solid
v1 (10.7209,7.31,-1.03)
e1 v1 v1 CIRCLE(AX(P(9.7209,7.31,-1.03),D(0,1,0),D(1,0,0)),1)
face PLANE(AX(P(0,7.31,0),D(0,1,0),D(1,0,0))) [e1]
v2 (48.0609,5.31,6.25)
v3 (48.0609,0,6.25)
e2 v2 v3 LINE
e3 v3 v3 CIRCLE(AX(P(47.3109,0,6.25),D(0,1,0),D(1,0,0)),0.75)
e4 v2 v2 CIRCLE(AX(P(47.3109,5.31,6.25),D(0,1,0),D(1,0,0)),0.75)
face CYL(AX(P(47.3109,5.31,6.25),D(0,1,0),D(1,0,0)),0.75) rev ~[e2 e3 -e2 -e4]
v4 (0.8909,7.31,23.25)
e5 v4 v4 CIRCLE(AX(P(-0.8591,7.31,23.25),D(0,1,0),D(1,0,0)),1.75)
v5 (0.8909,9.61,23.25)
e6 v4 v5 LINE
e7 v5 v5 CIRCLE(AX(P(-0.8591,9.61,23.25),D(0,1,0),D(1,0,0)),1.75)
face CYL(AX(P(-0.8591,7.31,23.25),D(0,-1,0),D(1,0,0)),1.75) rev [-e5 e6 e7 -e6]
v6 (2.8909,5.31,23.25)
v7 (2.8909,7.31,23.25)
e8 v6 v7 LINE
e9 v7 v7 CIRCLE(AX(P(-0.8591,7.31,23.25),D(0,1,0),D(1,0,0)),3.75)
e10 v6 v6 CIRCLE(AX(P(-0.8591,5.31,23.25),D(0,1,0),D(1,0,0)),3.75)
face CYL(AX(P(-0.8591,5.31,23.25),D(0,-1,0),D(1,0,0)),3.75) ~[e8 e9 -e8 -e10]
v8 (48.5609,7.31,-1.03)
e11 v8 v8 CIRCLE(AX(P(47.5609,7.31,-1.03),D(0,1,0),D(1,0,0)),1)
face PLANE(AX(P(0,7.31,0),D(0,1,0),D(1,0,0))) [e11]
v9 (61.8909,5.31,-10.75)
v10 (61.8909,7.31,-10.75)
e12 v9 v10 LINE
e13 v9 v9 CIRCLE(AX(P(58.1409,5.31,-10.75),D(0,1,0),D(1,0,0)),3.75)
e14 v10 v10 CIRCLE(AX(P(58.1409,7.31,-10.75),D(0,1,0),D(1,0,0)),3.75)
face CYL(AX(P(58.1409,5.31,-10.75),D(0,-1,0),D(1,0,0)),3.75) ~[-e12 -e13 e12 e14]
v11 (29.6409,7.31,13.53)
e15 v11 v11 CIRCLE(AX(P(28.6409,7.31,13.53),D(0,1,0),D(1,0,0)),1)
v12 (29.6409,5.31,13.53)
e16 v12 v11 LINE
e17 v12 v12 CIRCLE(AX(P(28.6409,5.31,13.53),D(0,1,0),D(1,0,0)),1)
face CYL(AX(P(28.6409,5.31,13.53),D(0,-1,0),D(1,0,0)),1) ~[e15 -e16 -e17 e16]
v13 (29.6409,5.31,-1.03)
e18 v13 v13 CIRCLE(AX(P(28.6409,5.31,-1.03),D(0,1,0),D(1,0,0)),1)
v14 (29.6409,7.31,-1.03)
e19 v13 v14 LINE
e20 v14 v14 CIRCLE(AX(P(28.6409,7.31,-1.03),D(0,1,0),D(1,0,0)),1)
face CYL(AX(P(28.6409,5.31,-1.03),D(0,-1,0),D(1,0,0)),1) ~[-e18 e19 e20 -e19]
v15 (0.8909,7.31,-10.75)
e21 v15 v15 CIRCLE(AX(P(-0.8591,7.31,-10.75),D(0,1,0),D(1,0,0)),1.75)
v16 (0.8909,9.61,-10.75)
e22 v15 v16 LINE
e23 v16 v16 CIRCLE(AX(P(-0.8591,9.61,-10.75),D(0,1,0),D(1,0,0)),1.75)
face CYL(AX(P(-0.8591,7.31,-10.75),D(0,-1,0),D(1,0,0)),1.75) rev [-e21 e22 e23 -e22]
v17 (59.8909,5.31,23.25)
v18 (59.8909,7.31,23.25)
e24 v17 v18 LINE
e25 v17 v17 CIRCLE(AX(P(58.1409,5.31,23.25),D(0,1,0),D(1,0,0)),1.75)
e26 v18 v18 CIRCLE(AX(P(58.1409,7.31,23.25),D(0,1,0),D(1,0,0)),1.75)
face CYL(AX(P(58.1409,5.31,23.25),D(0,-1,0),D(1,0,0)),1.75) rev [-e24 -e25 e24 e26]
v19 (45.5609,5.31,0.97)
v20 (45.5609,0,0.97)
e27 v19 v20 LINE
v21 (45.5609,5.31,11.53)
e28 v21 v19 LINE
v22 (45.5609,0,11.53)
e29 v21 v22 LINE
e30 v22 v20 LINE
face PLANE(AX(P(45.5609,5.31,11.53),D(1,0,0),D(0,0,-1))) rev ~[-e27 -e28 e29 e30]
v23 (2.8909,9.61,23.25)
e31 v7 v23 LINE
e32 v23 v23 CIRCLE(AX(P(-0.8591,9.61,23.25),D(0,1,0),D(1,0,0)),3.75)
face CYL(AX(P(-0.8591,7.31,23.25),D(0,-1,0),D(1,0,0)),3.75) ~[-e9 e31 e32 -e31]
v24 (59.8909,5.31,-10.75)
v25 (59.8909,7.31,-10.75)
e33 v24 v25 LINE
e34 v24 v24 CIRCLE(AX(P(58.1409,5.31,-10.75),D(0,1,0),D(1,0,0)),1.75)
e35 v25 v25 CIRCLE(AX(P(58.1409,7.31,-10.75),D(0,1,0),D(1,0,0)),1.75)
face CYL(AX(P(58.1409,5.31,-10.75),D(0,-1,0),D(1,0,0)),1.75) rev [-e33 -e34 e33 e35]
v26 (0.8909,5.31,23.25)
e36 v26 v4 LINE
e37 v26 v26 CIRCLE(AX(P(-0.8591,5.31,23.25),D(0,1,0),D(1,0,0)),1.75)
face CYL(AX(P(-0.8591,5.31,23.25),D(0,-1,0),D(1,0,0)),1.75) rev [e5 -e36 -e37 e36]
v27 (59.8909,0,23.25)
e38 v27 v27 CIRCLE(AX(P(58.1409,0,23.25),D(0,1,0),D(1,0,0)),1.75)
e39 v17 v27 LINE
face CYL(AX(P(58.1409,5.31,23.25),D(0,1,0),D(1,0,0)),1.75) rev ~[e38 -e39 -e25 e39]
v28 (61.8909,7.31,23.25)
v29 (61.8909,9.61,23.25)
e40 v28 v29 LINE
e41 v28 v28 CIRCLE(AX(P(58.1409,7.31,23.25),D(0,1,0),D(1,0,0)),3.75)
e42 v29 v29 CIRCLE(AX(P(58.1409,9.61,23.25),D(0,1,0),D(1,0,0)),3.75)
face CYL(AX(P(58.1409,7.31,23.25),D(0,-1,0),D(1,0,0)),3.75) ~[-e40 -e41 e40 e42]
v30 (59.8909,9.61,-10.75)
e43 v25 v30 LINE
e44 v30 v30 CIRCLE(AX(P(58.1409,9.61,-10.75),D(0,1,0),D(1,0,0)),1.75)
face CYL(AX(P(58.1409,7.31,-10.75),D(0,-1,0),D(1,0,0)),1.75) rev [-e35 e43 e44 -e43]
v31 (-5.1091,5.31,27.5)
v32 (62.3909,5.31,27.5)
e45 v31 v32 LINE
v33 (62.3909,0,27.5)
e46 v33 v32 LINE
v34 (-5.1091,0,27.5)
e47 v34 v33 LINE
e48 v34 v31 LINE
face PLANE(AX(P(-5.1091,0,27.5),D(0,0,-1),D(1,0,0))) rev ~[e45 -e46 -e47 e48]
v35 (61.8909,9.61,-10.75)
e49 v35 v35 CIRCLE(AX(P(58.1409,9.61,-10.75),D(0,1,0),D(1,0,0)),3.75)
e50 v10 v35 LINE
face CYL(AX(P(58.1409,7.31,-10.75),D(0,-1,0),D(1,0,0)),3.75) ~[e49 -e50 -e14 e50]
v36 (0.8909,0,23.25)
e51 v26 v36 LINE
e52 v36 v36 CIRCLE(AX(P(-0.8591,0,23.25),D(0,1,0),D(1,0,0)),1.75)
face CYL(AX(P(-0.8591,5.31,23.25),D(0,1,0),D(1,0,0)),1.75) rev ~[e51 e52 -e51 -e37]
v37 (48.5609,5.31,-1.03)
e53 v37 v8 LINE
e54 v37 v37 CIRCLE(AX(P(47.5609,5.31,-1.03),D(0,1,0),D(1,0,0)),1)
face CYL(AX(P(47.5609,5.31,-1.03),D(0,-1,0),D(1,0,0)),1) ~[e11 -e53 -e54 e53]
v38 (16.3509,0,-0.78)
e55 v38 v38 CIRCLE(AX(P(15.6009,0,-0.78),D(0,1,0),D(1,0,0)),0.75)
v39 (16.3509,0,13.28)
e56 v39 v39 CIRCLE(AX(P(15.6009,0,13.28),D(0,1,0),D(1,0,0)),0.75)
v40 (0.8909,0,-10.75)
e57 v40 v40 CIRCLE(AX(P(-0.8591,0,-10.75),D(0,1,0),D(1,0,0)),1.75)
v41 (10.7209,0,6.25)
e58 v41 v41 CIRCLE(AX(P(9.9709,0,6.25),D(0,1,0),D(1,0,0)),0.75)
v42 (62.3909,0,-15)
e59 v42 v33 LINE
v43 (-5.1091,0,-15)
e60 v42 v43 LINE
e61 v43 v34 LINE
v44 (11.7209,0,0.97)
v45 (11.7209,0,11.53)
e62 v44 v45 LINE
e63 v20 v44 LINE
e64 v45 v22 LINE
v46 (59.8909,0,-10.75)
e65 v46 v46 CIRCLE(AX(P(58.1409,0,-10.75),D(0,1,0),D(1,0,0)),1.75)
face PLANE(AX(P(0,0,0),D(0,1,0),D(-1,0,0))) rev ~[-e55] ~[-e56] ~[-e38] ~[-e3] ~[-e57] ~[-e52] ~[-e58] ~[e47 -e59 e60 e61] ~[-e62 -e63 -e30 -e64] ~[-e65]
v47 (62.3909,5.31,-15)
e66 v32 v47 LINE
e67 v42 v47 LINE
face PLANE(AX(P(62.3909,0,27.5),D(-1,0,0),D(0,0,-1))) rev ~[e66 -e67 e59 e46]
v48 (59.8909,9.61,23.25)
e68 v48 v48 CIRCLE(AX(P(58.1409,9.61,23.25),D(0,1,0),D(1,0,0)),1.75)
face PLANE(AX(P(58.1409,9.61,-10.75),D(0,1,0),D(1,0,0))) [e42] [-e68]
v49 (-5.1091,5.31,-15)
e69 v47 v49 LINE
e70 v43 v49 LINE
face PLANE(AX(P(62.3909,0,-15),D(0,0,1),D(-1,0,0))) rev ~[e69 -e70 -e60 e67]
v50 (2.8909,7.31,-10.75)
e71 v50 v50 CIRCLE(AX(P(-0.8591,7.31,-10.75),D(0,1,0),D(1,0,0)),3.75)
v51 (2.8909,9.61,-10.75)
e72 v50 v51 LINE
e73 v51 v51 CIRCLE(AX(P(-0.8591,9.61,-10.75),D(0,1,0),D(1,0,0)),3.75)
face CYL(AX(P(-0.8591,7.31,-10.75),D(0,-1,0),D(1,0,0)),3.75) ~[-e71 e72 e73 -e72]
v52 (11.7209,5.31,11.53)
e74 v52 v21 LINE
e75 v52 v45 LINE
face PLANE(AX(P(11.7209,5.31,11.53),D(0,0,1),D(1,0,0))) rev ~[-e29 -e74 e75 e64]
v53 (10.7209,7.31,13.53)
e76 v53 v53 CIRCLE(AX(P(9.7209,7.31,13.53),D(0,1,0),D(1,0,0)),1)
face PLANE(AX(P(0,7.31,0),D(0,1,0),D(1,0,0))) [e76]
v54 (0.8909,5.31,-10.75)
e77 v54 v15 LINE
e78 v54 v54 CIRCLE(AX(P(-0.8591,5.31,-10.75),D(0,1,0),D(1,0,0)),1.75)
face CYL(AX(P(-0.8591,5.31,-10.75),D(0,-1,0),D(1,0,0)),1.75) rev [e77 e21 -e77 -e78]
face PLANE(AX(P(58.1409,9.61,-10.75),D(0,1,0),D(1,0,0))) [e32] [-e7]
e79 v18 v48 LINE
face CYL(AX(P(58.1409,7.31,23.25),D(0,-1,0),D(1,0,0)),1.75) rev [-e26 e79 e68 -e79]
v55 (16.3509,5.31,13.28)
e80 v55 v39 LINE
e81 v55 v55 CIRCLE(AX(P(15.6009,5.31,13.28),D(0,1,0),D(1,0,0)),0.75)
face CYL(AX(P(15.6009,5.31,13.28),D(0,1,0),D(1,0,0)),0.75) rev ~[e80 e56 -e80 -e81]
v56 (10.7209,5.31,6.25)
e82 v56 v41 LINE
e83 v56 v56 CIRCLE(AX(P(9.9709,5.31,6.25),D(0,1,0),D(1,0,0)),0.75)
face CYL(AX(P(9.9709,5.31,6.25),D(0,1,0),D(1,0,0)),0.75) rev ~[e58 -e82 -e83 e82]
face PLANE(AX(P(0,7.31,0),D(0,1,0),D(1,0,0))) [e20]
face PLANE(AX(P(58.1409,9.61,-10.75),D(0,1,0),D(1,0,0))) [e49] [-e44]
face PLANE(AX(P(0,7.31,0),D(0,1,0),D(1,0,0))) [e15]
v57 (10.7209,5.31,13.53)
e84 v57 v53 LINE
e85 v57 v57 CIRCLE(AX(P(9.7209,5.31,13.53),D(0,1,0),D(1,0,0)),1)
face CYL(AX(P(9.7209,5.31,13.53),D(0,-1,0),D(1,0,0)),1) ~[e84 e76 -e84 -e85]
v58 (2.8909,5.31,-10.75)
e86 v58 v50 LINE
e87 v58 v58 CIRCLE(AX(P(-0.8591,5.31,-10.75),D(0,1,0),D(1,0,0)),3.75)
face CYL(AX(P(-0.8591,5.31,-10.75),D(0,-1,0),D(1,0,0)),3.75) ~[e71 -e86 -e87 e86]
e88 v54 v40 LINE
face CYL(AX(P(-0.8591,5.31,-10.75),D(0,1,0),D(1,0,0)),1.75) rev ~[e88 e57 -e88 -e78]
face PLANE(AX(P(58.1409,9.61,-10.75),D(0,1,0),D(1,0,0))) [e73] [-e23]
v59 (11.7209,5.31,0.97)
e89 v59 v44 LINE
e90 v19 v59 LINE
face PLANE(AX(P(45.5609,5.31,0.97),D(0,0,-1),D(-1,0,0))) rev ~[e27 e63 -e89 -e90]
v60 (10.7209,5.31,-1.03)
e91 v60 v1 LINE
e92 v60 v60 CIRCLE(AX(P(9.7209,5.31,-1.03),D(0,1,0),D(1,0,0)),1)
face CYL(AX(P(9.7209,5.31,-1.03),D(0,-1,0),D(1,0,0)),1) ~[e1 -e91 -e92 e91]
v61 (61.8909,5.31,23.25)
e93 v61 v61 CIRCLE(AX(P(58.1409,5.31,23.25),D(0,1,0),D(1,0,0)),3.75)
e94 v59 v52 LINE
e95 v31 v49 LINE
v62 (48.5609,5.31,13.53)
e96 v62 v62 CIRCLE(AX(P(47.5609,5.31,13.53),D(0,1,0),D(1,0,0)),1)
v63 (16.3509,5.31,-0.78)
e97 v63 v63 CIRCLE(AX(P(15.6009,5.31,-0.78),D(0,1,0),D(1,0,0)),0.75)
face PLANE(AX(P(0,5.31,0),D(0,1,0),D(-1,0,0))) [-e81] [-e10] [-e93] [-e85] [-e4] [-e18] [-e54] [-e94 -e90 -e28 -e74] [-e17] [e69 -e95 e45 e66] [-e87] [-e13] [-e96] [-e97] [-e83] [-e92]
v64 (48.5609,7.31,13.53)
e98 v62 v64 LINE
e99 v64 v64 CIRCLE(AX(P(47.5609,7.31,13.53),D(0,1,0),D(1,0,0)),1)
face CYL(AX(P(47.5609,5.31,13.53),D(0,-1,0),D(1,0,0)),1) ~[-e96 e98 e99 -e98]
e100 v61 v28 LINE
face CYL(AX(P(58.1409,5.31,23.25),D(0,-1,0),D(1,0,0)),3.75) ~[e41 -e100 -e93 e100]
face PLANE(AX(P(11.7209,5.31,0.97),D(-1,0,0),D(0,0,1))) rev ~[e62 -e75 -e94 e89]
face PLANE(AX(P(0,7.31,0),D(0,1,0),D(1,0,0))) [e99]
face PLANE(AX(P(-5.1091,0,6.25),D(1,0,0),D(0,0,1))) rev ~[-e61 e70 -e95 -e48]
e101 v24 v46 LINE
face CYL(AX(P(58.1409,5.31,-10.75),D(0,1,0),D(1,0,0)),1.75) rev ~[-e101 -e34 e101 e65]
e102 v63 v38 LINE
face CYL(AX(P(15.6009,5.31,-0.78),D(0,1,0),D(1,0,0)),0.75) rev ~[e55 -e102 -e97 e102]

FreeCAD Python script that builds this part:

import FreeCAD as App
import Part
import Sketcher

doc = App.newDocument("Part")
body = doc.addObject("PartDesign::Body", "Body")

sketch1 = body.newObject("Sketcher::SketchObject", "Sketch")
sketch1.AttachmentSupport = (doc.getObject("XZ_Plane"), [""])
sketch1.MapMode = "FlatFace"
sketch1.addGeometry([
    Part.LineSegment(App.Vector(-5, 28, 0), App.Vector(62, 28, 0)),
    Part.LineSegment(App.Vector(62, 28, 0), App.Vector(62, -15, 0)),
    Part.LineSegment(App.Vector(62, -15, 0), App.Vector(-5, -15, 0)),
    Part.LineSegment(App.Vector(-5, -15, 0), App.Vector(-5, 28, 0)),
], False)
sketch1.addConstraint([
    Sketcher.Constraint("Coincident", 0, 2, 1, 1),
    Sketcher.Constraint("Coincident", 1, 2, 2, 1),
    Sketcher.Constraint("Coincident", 2, 2, 3, 1),
    Sketcher.Constraint("Coincident", 3, 2, 0, 1),
    Sketcher.Constraint("Horizontal", 0),
    Sketcher.Constraint("Vertical", 1),
    Sketcher.Constraint("Horizontal", 2),
    Sketcher.Constraint("Vertical", 3),
    Sketcher.Constraint("DistanceX", 0, 1, 0, 2, 67.5),
    Sketcher.Constraint("DistanceY", 1, 2, 1, 1, 42.5),
    Sketcher.Constraint("DistanceY", 1, 2, -1, 1, 15.0),
    Sketcher.Constraint("DistanceX", -1, 1, 0, 2, 62.391),
])
pad1 = body.newObject("PartDesign::Pad", "Pad")
pad1.Profile = sketch1
pad1.Length = 5.31
pad1.Reversed = True

sketch2 = body.newObject("Sketcher::SketchObject", "Sketch001")
sketch2.AttachmentSupport = (doc.getObject("XZ_Plane"), [""])
sketch2.MapMode = "FlatFace"
sketch2.AttachmentOffset = App.Placement(App.Vector(0, 0, -5.31), App.Rotation())
sketch2.addGeometry([
    Part.Circle(App.Vector(10, 6.2, 0), App.Vector(0, 0, 1), 0.8),
    Part.Circle(App.Vector(15.6, 13.3, 0), App.Vector(0, 0, 1), 0.8),
    Part.Circle(App.Vector(15.6, -0.8, 0), App.Vector(0, 0, 1), 0.8),
    Part.Circle(App.Vector(47.3, 6.2, 0), App.Vector(0, 0, 1), 0.8),
    Part.LineSegment(App.Vector(11.7, 1, 0), App.Vector(11.7, 11.5, 0)),
    Part.LineSegment(App.Vector(11.7, 11.5, 0), App.Vector(45.6, 11.5, 0)),
    Part.LineSegment(App.Vector(45.6, 11.5, 0), App.Vector(45.6, 1, 0)),
    Part.LineSegment(App.Vector(45.6, 1, 0), App.Vector(11.7, 1, 0)),
    Part.Circle(App.Vector(-0.9, -10.8, 0), App.Vector(0, 0, 1), 1.8),
    Part.Circle(App.Vector(-0.9, 23.2, 0), App.Vector(0, 0, 1), 1.8),
    Part.Circle(App.Vector(58.1, -10.8, 0), App.Vector(0, 0, 1), 1.8),
    Part.Circle(App.Vector(58.1, 23.2, 0), App.Vector(0, 0, 1), 1.8),
], False)
sketch2.addConstraint([
    Sketcher.Constraint("Coincident", 4, 2, 5, 1),
    Sketcher.Constraint("Coincident", 5, 2, 6, 1),
    Sketcher.Constraint("Coincident", 6, 2, 7, 1),
    Sketcher.Constraint("Coincident", 7, 2, 4, 1),
    Sketcher.Constraint("Vertical", 4),
    Sketcher.Constraint("Horizontal", 5),
    Sketcher.Constraint("Vertical", 6),
    Sketcher.Constraint("Horizontal", 7),
    Sketcher.Constraint("Equal", 0, 1),
    Sketcher.Constraint("Equal", 1, 2),
    Sketcher.Constraint("Equal", 2, 3),
    Sketcher.Constraint("Equal", 8, 9),
    Sketcher.Constraint("Equal", 9, 10),
    Sketcher.Constraint("Equal", 10, 11),
    Sketcher.Constraint("Horizontal", 0, 3, 3, 3),
    Sketcher.Constraint("Horizontal", 8, 3, 10, 3),
    Sketcher.Constraint("Horizontal", 9, 3, 11, 3),
    Sketcher.Constraint("Vertical", 1, 3, 2, 3),
    Sketcher.Constraint("Vertical", 8, 3, 9, 3),
    Sketcher.Constraint("Vertical", 10, 3, 11, 3),
    Sketcher.Constraint("Diameter", 0, 1.5),
    Sketcher.Constraint("Diameter", 8, 3.5),
    Sketcher.Constraint("DistanceY", 8, 3, 9, 3, 34.0),
    Sketcher.Constraint("DistanceX", 8, 3, 10, 3, 59.0),
    Sketcher.Constraint("DistanceX", 0, 3, 1, 3, 5.63),
    Sketcher.Constraint("DistanceY", 2, 3, 1, 3, 14.06),
    Sketcher.Constraint("DistanceX", 0, 3, 3, 3, 37.34),
    Sketcher.Constraint("DistanceY", 8, 3, 0, 3, 17.0),
    Sketcher.Constraint("DistanceX", 5, 1, 5, 2, 33.84),
    Sketcher.Constraint("DistanceY", 4, 1, 4, 2, 10.56),
    Sketcher.Constraint("DistanceY", -1, 1, 0, 3, 6.25),
    Sketcher.Constraint("DistanceY", -1, 1, 1, 3, 13.28),
    Sketcher.Constraint("DistanceY", -1, 1, 4, 2, 11.53),
    Sketcher.Constraint("DistanceX", 8, 3, 2, 3, 16.46),
    Sketcher.Constraint("DistanceX", 4, 2, 1, 3, 3.88),
    Sketcher.Constraint("DistanceX", -1, 1, 0, 3, 9.971),
])
pocket1 = body.newObject("PartDesign::Pocket", "Pocket")
pocket1.Profile = sketch2
pocket1.Type = "ThroughAll"
pocket1.Reversed = True

sketch3 = body.newObject("Sketcher::SketchObject", "Sketch002")
sketch3.AttachmentSupport = (doc.getObject("XZ_Plane"), [""])
sketch3.MapMode = "FlatFace"
sketch3.AttachmentOffset = App.Placement(App.Vector(0, 0, -5.31), App.Rotation())
sketch3.addGeometry([
    Part.Circle(App.Vector(-0.9, -10.8, 0), App.Vector(0, 0, 1), 3.8),
    Part.Circle(App.Vector(-0.9, -10.8, 0), App.Vector(0, 0, 1), 1.8),
    Part.Circle(App.Vector(58.1, 23.2, 0), App.Vector(0, 0, 1), 3.8),
    Part.Circle(App.Vector(58.1, 23.2, 0), App.Vector(0, 0, 1), 1.8),
    Part.Circle(App.Vector(58.1, -10.8, 0), App.Vector(0, 0, 1), 3.8),
    Part.Circle(App.Vector(58.1, -10.8, 0), App.Vector(0, 0, 1), 1.8),
    Part.Circle(App.Vector(-0.9, 23.2, 0), App.Vector(0, 0, 1), 3.8),
    Part.Circle(App.Vector(-0.9, 23.2, 0), App.Vector(0, 0, 1), 1.8),
    Part.Circle(App.Vector(47.6, 13.5, 0), App.Vector(0, 0, 1), 1),
    Part.Circle(App.Vector(9.7, 13.5, 0), App.Vector(0, 0, 1), 1),
    Part.Circle(App.Vector(47.6, -1, 0), App.Vector(0, 0, 1), 1),
    Part.Circle(App.Vector(9.7, -1, 0), App.Vector(0, 0, 1), 1),
    Part.Circle(App.Vector(28.6, -1, 0), App.Vector(0, 0, 1), 1),
    Part.Circle(App.Vector(28.6, 13.5, 0), App.Vector(0, 0, 1), 1),
], False)
sketch3.addConstraint([
    Sketcher.Constraint("Coincident", 1, 3, 0, 3),
    Sketcher.Constraint("Coincident", 3, 3, 2, 3),
    Sketcher.Constraint("Coincident", 5, 3, 4, 3),
    Sketcher.Constraint("Coincident", 7, 3, 6, 3),
    Sketcher.Constraint("Equal", 0, 2),
    Sketcher.Constraint("Equal", 1, 3),
    Sketcher.Constraint("Equal", 2, 4),
    Sketcher.Constraint("Equal", 3, 5),
    Sketcher.Constraint("Equal", 4, 6),
    Sketcher.Constraint("Equal", 5, 7),
    Sketcher.Constraint("Equal", 8, 9),
    Sketcher.Constraint("Equal", 9, 10),
    Sketcher.Constraint("Equal", 10, 11),
    Sketcher.Constraint("Equal", 11, 12),
    Sketcher.Constraint("Equal", 12, 13),
    Sketcher.Constraint("Horizontal", 1, 3, 4, 3),
    Sketcher.Constraint("Horizontal", 3, 3, 6, 3),
    Sketcher.Constraint("Horizontal", 8, 3, 9, 3),
    Sketcher.Constraint("Horizontal", 10, 3, 11, 3),
    Sketcher.Constraint("Horizontal", 11, 3, 12, 3),
    Sketcher.Constraint("Horizontal", 9, 3, 13, 3),
    Sketcher.Constraint("Vertical", 3, 3, 4, 3),
    Sketcher.Constraint("Vertical", 1, 3, 6, 3),
    Sketcher.Constraint("Vertical", 8, 3, 10, 3),
    Sketcher.Constraint("Vertical", 9, 3, 11, 3),
    Sketcher.Constraint("Vertical", 12, 3, 13, 3),
    Sketcher.Constraint("Diameter", 8, 2.0),
    Sketcher.Constraint("Diameter", 0, 7.5),
    Sketcher.Constraint("Diameter", 1, 3.5),
    Sketcher.Constraint("DistanceX", 0, 3, 2, 3, 59.0),
    Sketcher.Constraint("DistanceY", 0, 3, 2, 3, 34.0),
    Sketcher.Constraint("DistanceX", 0, 3, 12, 3, 29.5),
    Sketcher.Constraint("DistanceY", 0, 3, -1, 1, 10.75),
    Sketcher.Constraint("DistanceY", -1, 1, 8, 3, 13.53),
    Sketcher.Constraint("DistanceY", 10, 3, -1, 1, 1.03),
    Sketcher.Constraint("DistanceX", 8, 3, 2, 3, 10.58),
    Sketcher.Constraint("DistanceX", 6, 3, 9, 3, 10.58),
    Sketcher.Constraint("DistanceX", 0, 3, -1, 1, 0.859),
])
pad2 = body.newObject("PartDesign::Pad", "Pad001")
pad2.Profile = sketch3
pad2.Length = 2
pad2.Reversed = True

sketch4 = body.newObject("Sketcher::SketchObject", "Sketch003")
sketch4.AttachmentSupport = (doc.getObject("XZ_Plane"), [""])
sketch4.MapMode = "FlatFace"
sketch4.AttachmentOffset = App.Placement(App.Vector(0, 0, -7.31), App.Rotation())
sketch4.addGeometry([
    Part.Circle(App.Vector(58.1, 23.2, 0), App.Vector(0, 0, 1), 3.8),
    Part.Circle(App.Vector(58.1, 23.2, 0), App.Vector(0, 0, 1), 1.8),
    Part.Circle(App.Vector(-0.9, 23.2, 0), App.Vector(0, 0, 1), 3.8),
    Part.Circle(App.Vector(-0.9, 23.2, 0), App.Vector(0, 0, 1), 1.8),
    Part.Circle(App.Vector(-0.9, -10.8, 0), App.Vector(0, 0, 1), 3.8),
    Part.Circle(App.Vector(-0.9, -10.8, 0), App.Vector(0, 0, 1), 1.8),
    Part.Circle(App.Vector(58.1, -10.8, 0), App.Vector(0, 0, 1), 3.8),
    Part.Circle(App.Vector(58.1, -10.8, 0), App.Vector(0, 0, 1), 1.8),
], False)
sketch4.addConstraint([
    Sketcher.Constraint("Coincident", 1, 3, 0, 3),
    Sketcher.Constraint("Coincident", 3, 3, 2, 3),
    Sketcher.Constraint("Coincident", 5, 3, 4, 3),
    Sketcher.Constraint("Coincident", 7, 3, 6, 3),
    Sketcher.Constraint("Equal", 0, 2),
    Sketcher.Constraint("Equal", 1, 3),
    Sketcher.Constraint("Equal", 2, 4),
    Sketcher.Constraint("Equal", 3, 5),
    Sketcher.Constraint("Equal", 4, 6),
    Sketcher.Constraint("Equal", 5, 7),
    Sketcher.Constraint("Horizontal", 1, 3, 2, 3),
    Sketcher.Constraint("Horizontal", 5, 3, 6, 3),
    Sketcher.Constraint("Vertical", 3, 3, 4, 3),
    Sketcher.Constraint("Vertical", 1, 3, 6, 3),
    Sketcher.Constraint("Diameter", 0, 7.5),
    Sketcher.Constraint("Diameter", 1, 3.5),
    Sketcher.Constraint("DistanceX", 2, 3, 0, 3, 59.0),
    Sketcher.Constraint("DistanceY", 4, 3, 2, 3, 34.0),
    Sketcher.Constraint("DistanceY", -1, 1, 0, 3, 23.25),
    Sketcher.Constraint("DistanceX", -1, 1, 0, 3, 58.141),
])
pad3 = body.newObject("PartDesign::Pad", "Pad002")
pad3.Profile = sketch4
pad3.Length = 2.3
pad3.Reversed = True

doc.recompute()
